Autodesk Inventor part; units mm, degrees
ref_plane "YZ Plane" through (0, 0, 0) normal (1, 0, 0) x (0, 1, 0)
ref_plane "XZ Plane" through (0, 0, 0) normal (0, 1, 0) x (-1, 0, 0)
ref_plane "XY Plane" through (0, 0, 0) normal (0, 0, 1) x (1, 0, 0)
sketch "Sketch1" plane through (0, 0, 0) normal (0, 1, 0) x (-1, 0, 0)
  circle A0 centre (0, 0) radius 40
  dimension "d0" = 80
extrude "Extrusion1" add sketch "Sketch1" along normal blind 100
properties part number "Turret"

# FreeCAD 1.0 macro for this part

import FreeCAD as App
import Part
import Sketcher
from FreeCAD import Vector
Q = App.Units.Quantity

doc = App.newDocument("Part")
body = doc.addObject("PartDesign::Body", "Body")

# Sketch on XZ plane
sketch1 = body.newObject("Sketcher::SketchObject", "Sketch")
sketch1.AttachmentSupport = (doc.getObject("XZ_Plane"), [""])
sketch1.MapMode = "FlatFace"
sketch1.addGeometry(Part.Circle(Vector(0, 0, 0), Vector(0, 0, 1), 40), False)
sketch1.addConstraint([
    Sketcher.Constraint("Coincident", 0, 3, -1, 1),
    Sketcher.Constraint("Diameter", 0, Q("3.1496 in")),
])
pad1 = body.newObject("PartDesign::Pad", "Pad")
pad1.Profile = sketch1
pad1.Length = Q("3.9370079 in")
pad1.Reversed = True

doc.recompute()
